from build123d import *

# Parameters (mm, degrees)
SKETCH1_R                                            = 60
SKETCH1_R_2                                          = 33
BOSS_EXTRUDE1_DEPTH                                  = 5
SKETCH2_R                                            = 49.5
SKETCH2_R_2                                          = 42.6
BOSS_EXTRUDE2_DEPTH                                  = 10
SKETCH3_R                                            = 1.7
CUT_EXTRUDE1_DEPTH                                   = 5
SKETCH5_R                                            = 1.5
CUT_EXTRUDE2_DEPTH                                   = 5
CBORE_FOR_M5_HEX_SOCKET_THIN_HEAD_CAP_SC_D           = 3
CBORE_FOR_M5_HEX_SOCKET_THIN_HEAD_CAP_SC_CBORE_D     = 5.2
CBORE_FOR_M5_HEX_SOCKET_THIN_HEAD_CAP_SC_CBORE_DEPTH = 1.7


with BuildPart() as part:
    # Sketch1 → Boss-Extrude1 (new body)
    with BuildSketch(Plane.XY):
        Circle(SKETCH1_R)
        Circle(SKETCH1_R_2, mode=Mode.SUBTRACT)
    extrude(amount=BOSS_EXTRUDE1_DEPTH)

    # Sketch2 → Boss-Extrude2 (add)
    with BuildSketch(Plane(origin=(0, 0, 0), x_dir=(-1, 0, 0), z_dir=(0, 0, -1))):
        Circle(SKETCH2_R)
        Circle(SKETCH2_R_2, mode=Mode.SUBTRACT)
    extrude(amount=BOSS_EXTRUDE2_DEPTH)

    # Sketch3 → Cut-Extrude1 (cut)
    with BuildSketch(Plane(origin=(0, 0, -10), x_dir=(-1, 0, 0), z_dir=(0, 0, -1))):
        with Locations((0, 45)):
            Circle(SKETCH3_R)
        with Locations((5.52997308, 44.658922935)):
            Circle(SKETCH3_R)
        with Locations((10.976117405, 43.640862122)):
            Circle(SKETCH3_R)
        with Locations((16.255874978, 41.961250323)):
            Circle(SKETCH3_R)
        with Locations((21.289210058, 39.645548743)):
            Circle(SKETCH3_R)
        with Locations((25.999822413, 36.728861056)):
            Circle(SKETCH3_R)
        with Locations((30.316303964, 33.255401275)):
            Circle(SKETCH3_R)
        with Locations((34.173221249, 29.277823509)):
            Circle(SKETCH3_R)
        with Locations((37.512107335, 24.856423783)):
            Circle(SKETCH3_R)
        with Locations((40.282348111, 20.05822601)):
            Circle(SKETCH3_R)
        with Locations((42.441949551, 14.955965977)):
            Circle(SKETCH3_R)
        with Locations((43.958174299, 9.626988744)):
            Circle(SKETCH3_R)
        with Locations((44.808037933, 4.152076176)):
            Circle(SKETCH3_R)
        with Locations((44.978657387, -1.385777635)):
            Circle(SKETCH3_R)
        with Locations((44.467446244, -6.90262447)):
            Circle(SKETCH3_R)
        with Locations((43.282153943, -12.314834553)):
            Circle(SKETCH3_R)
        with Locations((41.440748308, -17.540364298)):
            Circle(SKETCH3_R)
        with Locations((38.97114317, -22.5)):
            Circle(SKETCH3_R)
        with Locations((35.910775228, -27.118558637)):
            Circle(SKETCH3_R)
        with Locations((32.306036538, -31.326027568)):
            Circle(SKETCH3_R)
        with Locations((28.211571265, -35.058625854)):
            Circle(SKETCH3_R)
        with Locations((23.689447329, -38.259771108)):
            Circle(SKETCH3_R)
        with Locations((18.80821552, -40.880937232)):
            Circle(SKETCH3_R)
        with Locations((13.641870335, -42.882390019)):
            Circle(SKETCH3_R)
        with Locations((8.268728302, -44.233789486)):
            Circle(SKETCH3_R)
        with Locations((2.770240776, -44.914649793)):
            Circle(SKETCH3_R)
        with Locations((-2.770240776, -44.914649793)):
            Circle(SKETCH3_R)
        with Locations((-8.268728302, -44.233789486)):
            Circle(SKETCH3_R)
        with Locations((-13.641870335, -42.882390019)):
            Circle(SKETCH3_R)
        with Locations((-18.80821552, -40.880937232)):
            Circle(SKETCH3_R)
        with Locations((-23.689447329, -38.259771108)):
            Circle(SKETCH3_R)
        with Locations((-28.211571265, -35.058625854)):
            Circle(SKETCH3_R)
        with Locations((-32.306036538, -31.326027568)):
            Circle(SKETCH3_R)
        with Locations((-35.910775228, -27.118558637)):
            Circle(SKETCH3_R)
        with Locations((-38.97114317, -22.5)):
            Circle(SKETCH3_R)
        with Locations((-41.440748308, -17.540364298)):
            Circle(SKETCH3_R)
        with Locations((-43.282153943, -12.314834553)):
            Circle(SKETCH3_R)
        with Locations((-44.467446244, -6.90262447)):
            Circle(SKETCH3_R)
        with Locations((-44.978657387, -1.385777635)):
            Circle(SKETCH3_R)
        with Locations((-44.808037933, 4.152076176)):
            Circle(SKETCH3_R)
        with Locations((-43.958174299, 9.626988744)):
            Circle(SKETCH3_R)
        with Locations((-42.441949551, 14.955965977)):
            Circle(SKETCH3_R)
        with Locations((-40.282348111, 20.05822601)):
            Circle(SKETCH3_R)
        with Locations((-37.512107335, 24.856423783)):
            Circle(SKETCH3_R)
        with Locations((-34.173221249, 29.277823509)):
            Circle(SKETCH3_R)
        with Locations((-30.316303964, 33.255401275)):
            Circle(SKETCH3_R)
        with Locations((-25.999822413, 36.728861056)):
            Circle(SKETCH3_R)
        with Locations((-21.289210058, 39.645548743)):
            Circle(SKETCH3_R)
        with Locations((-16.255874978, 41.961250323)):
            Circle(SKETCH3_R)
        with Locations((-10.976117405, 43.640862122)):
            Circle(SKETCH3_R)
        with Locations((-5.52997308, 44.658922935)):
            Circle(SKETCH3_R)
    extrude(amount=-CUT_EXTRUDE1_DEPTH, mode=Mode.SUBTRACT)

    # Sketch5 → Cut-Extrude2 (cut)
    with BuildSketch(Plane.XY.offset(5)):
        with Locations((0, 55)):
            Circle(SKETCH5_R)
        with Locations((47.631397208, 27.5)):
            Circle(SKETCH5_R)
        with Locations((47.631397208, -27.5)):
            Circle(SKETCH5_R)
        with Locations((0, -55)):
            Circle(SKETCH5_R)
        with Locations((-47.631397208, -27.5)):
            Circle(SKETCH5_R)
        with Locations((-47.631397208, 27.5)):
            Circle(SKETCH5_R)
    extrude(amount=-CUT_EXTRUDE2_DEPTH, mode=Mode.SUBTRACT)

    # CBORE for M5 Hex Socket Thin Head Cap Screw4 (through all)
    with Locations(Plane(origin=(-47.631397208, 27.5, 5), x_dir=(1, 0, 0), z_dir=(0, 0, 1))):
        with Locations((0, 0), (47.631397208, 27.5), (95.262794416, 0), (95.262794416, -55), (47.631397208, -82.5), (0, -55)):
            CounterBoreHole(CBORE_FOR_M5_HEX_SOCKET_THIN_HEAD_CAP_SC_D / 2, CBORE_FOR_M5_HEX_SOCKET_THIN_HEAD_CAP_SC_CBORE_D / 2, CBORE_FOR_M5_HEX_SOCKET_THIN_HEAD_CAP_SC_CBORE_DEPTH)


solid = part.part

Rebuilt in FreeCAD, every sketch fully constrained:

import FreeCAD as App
import Part
import Sketcher

V = App.Vector

doc = App.newDocument("Part")
params = doc.addObject("Spreadsheet::Sheet", "Params")
for row, (alias, value) in enumerate([
    ("sketch1_diameter", "120 mm"),
    ("sketch1_diameter2", "66 mm"),
    ("pad1_length", "5 mm"),
    ("sketch2_diameter", "99 mm"),
    ("sketch2_diameter2", "85.2 mm"),
    ("pad2_length", "10 mm"),
    ("sketch3_diameter", "3.4 mm"),
    ("pocket1_length", "5 mm"),
    ("sketch4_diameter", "3 mm"),
    ("pocket2_length", "5 mm"),
    ("sketch5_diameter", "3 mm"),
    ("hole_diameter", "3 mm"),
    ("hole_cbore_diameter", "5.2 mm"),
    ("hole_cbore_depth", "1.7 mm"),
], start=1):
    params.set(f"A{row}", alias)
    params.set(f"B{row}", "=" + value)
    params.setAlias(f"B{row}", alias)

body = doc.addObject("PartDesign::Body", "Body")

sketch1 = doc.addObject("Sketcher::SketchObject", "Sketch")
body.addObject(sketch1)
sketch1.AttachmentSupport = (doc.XY_Plane, [""])
sketch1.MapMode = "FlatFace"
sketch1.addGeometry(Part.Circle(V(0, 0, 0), V(0, 0, 1), 60), False)
sketch1.addGeometry(Part.Circle(V(0, 0, 0), V(0, 0, 1), 33), False)
sketch1.addConstraint(Sketcher.Constraint("Coincident", 0, 3, -1, 1))
sketch1.addConstraint(Sketcher.Constraint("Coincident", 1, 3, -1, 1))
sketch1.addConstraint(Sketcher.Constraint("Diameter", 0, 120.0))
sketch1.addConstraint(Sketcher.Constraint("Diameter", 1, 66.0))
sketch1.setExpression("Constraints[2]", "Params.sketch1_diameter")
sketch1.setExpression("Constraints[3]", "Params.sketch1_diameter2")
pad1 = doc.addObject("PartDesign::Pad", "Pad")
body.addObject(pad1)
pad1.Profile = sketch1
pad1.setExpression("Length", "Params.pad1_length")

sketch2 = doc.addObject("Sketcher::SketchObject", "Sketch001")
body.addObject(sketch2)
sketch2.AttachmentSupport = (doc.XY_Plane, [""])
sketch2.MapMode = "FlatFace"
sketch2.addGeometry(Part.Circle(V(0, 0, 0), V(0, 0, 1), 50), False)
sketch2.addGeometry(Part.Circle(V(0, 0, 0), V(0, 0, 1), 43), False)
sketch2.addConstraint(Sketcher.Constraint("Coincident", 0, 3, -1, 1))
sketch2.addConstraint(Sketcher.Constraint("Coincident", 1, 3, -1, 1))
sketch2.addConstraint(Sketcher.Constraint("Diameter", 0, 99.0))
sketch2.addConstraint(Sketcher.Constraint("Diameter", 1, 85.2))
sketch2.setExpression("Constraints[2]", "Params.sketch2_diameter")
sketch2.setExpression("Constraints[3]", "Params.sketch2_diameter2")
pad2 = doc.addObject("PartDesign::Pad", "Pad001")
body.addObject(pad2)
pad2.Profile = sketch2
pad2.setExpression("Length", "Params.pad2_length")
pad2.Reversed = True

sketch3 = doc.addObject("Sketcher::SketchObject", "Sketch002")
body.addObject(sketch3)
sketch3.AttachmentSupport = (doc.XY_Plane, [""])
sketch3.MapMode = "FlatFace"
sketch3.AttachmentOffset = App.Placement(V(0, 0, -10), App.Rotation())
sketch3.addGeometry(Part.Circle(V(0, 45, 0), V(0, 0, 1), 1.7), False)
sketch3.addGeometry(Part.Circle(V(-5.5, 44.7, 0), V(0, 0, 1), 1.7), False)
sketch3.addGeometry(Part.Circle(V(-11, 43.6, 0), V(0, 0, 1), 1.7), False)
sketch3.addGeometry(Part.Circle(V(-16.3, 42, 0), V(0, 0, 1), 1.7), False)
sketch3.addGeometry(Part.Circle(V(-21.3, 39.6, 0), V(0, 0, 1), 1.7), False)
sketch3.addGeometry(Part.Circle(V(-26, 36.7, 0), V(0, 0, 1), 1.7), False)
sketch3.addGeometry(Part.Circle(V(-30.3, 33.3, 0), V(0, 0, 1), 1.7), False)
sketch3.addGeometry(Part.Circle(V(-34.2, 29.3, 0), V(0, 0, 1), 1.7), False)
sketch3.addGeometry(Part.Circle(V(-37.5, 24.9, 0), V(0, 0, 1), 1.7), False)
sketch3.addGeometry(Part.Circle(V(-40.3, 20.1, 0), V(0, 0, 1), 1.7), False)
sketch3.addGeometry(Part.Circle(V(-42.4, 15, 0), V(0, 0, 1), 1.7), False)
sketch3.addGeometry(Part.Circle(V(-44, 9.6, 0), V(0, 0, 1), 1.7), False)
sketch3.addGeometry(Part.Circle(V(-44.8, 4.2, 0), V(0, 0, 1), 1.7), False)
sketch3.addGeometry(Part.Circle(V(-45, -1.4, 0), V(0, 0, 1), 1.7), False)
sketch3.addGeometry(Part.Circle(V(-44.5, -6.9, 0), V(0, 0, 1), 1.7), False)
sketch3.addGeometry(Part.Circle(V(-43.3, -12.3, 0), V(0, 0, 1), 1.7), False)
sketch3.addGeometry(Part.Circle(V(-41.4, -17.5, 0), V(0, 0, 1), 1.7), False)
sketch3.addGeometry(Part.Circle(V(-39, -22.5, 0), V(0, 0, 1), 1.7), False)
sketch3.addGeometry(Part.Circle(V(-35.9, -27.1, 0), V(0, 0, 1), 1.7), False)
sketch3.addGeometry(Part.Circle(V(-32.3, -31.3, 0), V(0, 0, 1), 1.7), False)
sketch3.addGeometry(Part.Circle(V(-28.2, -35.1, 0), V(0, 0, 1), 1.7), False)
sketch3.addGeometry(Part.Circle(V(-23.7, -38.3, 0), V(0, 0, 1), 1.7), False)
sketch3.addGeometry(Part.Circle(V(-18.8, -40.9, 0), V(0, 0, 1), 1.7), False)
sketch3.addGeometry(Part.Circle(V(-13.6, -42.9, 0), V(0, 0, 1), 1.7), False)
sketch3.addGeometry(Part.Circle(V(-8.3, -44.2, 0), V(0, 0, 1), 1.7), False)
sketch3.addGeometry(Part.Circle(V(-2.8, -44.9, 0), V(0, 0, 1), 1.7), False)
sketch3.addGeometry(Part.Circle(V(2.8, -44.9, 0), V(0, 0, 1), 1.7), False)
sketch3.addGeometry(Part.Circle(V(8.3, -44.2, 0), V(0, 0, 1), 1.7), False)
sketch3.addGeometry(Part.Circle(V(13.6, -42.9, 0), V(0, 0, 1), 1.7), False)
sketch3.addGeometry(Part.Circle(V(18.8, -40.9, 0), V(0, 0, 1), 1.7), False)
sketch3.addGeometry(Part.Circle(V(23.7, -38.3, 0), V(0, 0, 1), 1.7), False)
sketch3.addGeometry(Part.Circle(V(28.2, -35.1, 0), V(0, 0, 1), 1.7), False)
sketch3.addGeometry(Part.Circle(V(32.3, -31.3, 0), V(0, 0, 1), 1.7), False)
sketch3.addGeometry(Part.Circle(V(35.9, -27.1, 0), V(0, 0, 1), 1.7), False)
sketch3.addGeometry(Part.Circle(V(39, -22.5, 0), V(0, 0, 1), 1.7), False)
sketch3.addGeometry(Part.Circle(V(41.4, -17.5, 0), V(0, 0, 1), 1.7), False)
sketch3.addGeometry(Part.Circle(V(43.3, -12.3, 0), V(0, 0, 1), 1.7), False)
sketch3.addGeometry(Part.Circle(V(44.5, -6.9, 0), V(0, 0, 1), 1.7), False)
sketch3.addGeometry(Part.Circle(V(45, -1.4, 0), V(0, 0, 1), 1.7), False)
sketch3.addGeometry(Part.Circle(V(44.8, 4.2, 0), V(0, 0, 1), 1.7), False)
sketch3.addGeometry(Part.Circle(V(44, 9.6, 0), V(0, 0, 1), 1.7), False)
sketch3.addGeometry(Part.Circle(V(42.4, 15, 0), V(0, 0, 1), 1.7), False)
sketch3.addGeometry(Part.Circle(V(40.3, 20.1, 0), V(0, 0, 1), 1.7), False)
sketch3.addGeometry(Part.Circle(V(37.5, 24.9, 0), V(0, 0, 1), 1.7), False)
sketch3.addGeometry(Part.Circle(V(34.2, 29.3, 0), V(0, 0, 1), 1.7), False)
sketch3.addGeometry(Part.Circle(V(30.3, 33.3, 0), V(0, 0, 1), 1.7), False)
sketch3.addGeometry(Part.Circle(V(26, 36.7, 0), V(0, 0, 1), 1.7), False)
sketch3.addGeometry(Part.Circle(V(21.3, 39.6, 0), V(0, 0, 1), 1.7), False)
sketch3.addGeometry(Part.Circle(V(16.3, 42, 0), V(0, 0, 1), 1.7), False)
sketch3.addGeometry(Part.Circle(V(11, 43.6, 0), V(0, 0, 1), 1.7), False)
sketch3.addGeometry(Part.Circle(V(5.5, 44.7, 0), V(0, 0, 1), 1.7), False)
sketch3.addConstraint(Sketcher.Constraint("Equal", 0, 1))
sketch3.addConstraint(Sketcher.Constraint("Equal", 1, 2))
sketch3.addConstraint(Sketcher.Constraint("Equal", 2, 3))
sketch3.addConstraint(Sketcher.Constraint("Equal", 3, 4))
sketch3.addConstraint(Sketcher.Constraint("Equal", 4, 5))
sketch3.addConstraint(Sketcher.Constraint("Equal", 5, 6))
sketch3.addConstraint(Sketcher.Constraint("Equal", 6, 7))
sketch3.addConstraint(Sketcher.Constraint("Equal", 7, 8))
sketch3.addConstraint(Sketcher.Constraint("Equal", 8, 9))
sketch3.addConstraint(Sketcher.Constraint("Equal", 9, 10))
sketch3.addConstraint(Sketcher.Constraint("Equal", 10, 11))
sketch3.addConstraint(Sketcher.Constraint("Equal", 11, 12))
sketch3.addConstraint(Sketcher.Constraint("Equal", 12, 13))
sketch3.addConstraint(Sketcher.Constraint("Equal", 13, 14))
sketch3.addConstraint(Sketcher.Constraint("Equal", 14, 15))
sketch3.addConstraint(Sketcher.Constraint("Equal", 15, 16))
sketch3.addConstraint(Sketcher.Constraint("Equal", 16, 17))
sketch3.addConstraint(Sketcher.Constraint("Equal", 17, 18))
sketch3.addConstraint(Sketcher.Constraint("Equal", 18, 19))
sketch3.addConstraint(Sketcher.Constraint("Equal", 19, 20))
sketch3.addConstraint(Sketcher.Constraint("Equal", 20, 21))
sketch3.addConstraint(Sketcher.Constraint("Equal", 21, 22))
sketch3.addConstraint(Sketcher.Constraint("Equal", 22, 23))
sketch3.addConstraint(Sketcher.Constraint("Equal", 23, 24))
sketch3.addConstraint(Sketcher.Constraint("Equal", 24, 25))
sketch3.addConstraint(Sketcher.Constraint("Equal", 25, 26))
sketch3.addConstraint(Sketcher.Constraint("Equal", 26, 27))
sketch3.addConstraint(Sketcher.Constraint("Equal", 27, 28))
sketch3.addConstraint(Sketcher.Constraint("Equal", 28, 29))
sketch3.addConstraint(Sketcher.Constraint("Equal", 29, 30))
sketch3.addConstraint(Sketcher.Constraint("Equal", 30, 31))
sketch3.addConstraint(Sketcher.Constraint("Equal", 31, 32))
sketch3.addConstraint(Sketcher.Constraint("Equal", 32, 33))
sketch3.addConstraint(Sketcher.Constraint("Equal", 33, 34))
sketch3.addConstraint(Sketcher.Constraint("Equal", 34, 35))
sketch3.addConstraint(Sketcher.Constraint("Equal", 35, 36))
sketch3.addConstraint(Sketcher.Constraint("Equal", 36, 37))
sketch3.addConstraint(Sketcher.Constraint("Equal", 37, 38))
sketch3.addConstraint(Sketcher.Constraint("Equal", 38, 39))
sketch3.addConstraint(Sketcher.Constraint("Equal", 39, 40))
sketch3.addConstraint(Sketcher.Constraint("Equal", 40, 41))
sketch3.addConstraint(Sketcher.Constraint("Equal", 41, 42))
sketch3.addConstraint(Sketcher.Constraint("Equal", 42, 43))
sketch3.addConstraint(Sketcher.Constraint("Equal", 43, 44))
sketch3.addConstraint(Sketcher.Constraint("Equal", 44, 45))
sketch3.addConstraint(Sketcher.Constraint("Equal", 45, 46))
sketch3.addConstraint(Sketcher.Constraint("Equal", 46, 47))
sketch3.addConstraint(Sketcher.Constraint("Equal", 47, 48))
sketch3.addConstraint(Sketcher.Constraint("Equal", 48, 49))
sketch3.addConstraint(Sketcher.Constraint("Equal", 49, 50))
sketch3.addConstraint(Sketcher.Constraint("Symmetric", 25, 3, 26, 3, -2))
sketch3.addConstraint(Sketcher.Constraint("Symmetric", 24, 3, 27, 3, -2))
sketch3.addConstraint(Sketcher.Constraint("Symmetric", 23, 3, 28, 3, -2))
sketch3.addConstraint(Sketcher.Constraint("Symmetric", 22, 3, 29, 3, -2))
sketch3.addConstraint(Sketcher.Constraint("Symmetric", 21, 3, 30, 3, -2))
sketch3.addConstraint(Sketcher.Constraint("Symmetric", 20, 3, 31, 3, -2))
sketch3.addConstraint(Sketcher.Constraint("Symmetric", 19, 3, 32, 3, -2))
sketch3.addConstraint(Sketcher.Constraint("Symmetric", 18, 3, 33, 3, -2))
sketch3.addConstraint(Sketcher.Constraint("Symmetric", 17, 3, 34, 3, -2))
sketch3.addConstraint(Sketcher.Constraint("Symmetric", 16, 3, 35, 3, -2))
sketch3.addConstraint(Sketcher.Constraint("Symmetric", 15, 3, 36, 3, -2))
sketch3.addConstraint(Sketcher.Constraint("Symmetric", 14, 3, 37, 3, -2))
sketch3.addConstraint(Sketcher.Constraint("Symmetric", 13, 3, 38, 3, -2))
sketch3.addConstraint(Sketcher.Constraint("Symmetric", 12, 3, 39, 3, -2))
sketch3.addConstraint(Sketcher.Constraint("Symmetric", 11, 3, 40, 3, -2))
sketch3.addConstraint(Sketcher.Constraint("Symmetric", 10, 3, 41, 3, -2))
sketch3.addConstraint(Sketcher.Constraint("Symmetric", 9, 3, 42, 3, -2))
sketch3.addConstraint(Sketcher.Constraint("Symmetric", 8, 3, 43, 3, -2))
sketch3.addConstraint(Sketcher.Constraint("Symmetric", 7, 3, 44, 3, -2))
sketch3.addConstraint(Sketcher.Constraint("Symmetric", 6, 3, 45, 3, -2))
sketch3.addConstraint(Sketcher.Constraint("Symmetric", 5, 3, 46, 3, -2))
sketch3.addConstraint(Sketcher.Constraint("Symmetric", 4, 3, 47, 3, -2))
sketch3.addConstraint(Sketcher.Constraint("Symmetric", 3, 3, 48, 3, -2))
sketch3.addConstraint(Sketcher.Constraint("Symmetric", 2, 3, 49, 3, -2))
sketch3.addConstraint(Sketcher.Constraint("Symmetric", 1, 3, 50, 3, -2))
sketch3.addConstraint(Sketcher.Constraint("PointOnObject", 0, 3, -2))
sketch3.addConstraint(Sketcher.Constraint("Diameter", 0, 3.4))
sketch3.addConstraint(Sketcher.Constraint("DistanceY", -1, 1, 0, 3, 45.0))
sketch3.addConstraint(Sketcher.Constraint("DistanceY", 17, 3, -1, 1, 22.5))
sketch3.addConstraint(Sketcher.Constraint("DistanceY", 5, 3, 2, 3, 6.912001))
sketch3.addConstraint(Sketcher.Constraint("DistanceY", -1, 1, 6, 3, 33.255401))
sketch3.addConstraint(Sketcher.Constraint("DistanceX", 3, 3, 1, 3, 10.725902))
sketch3.addConstraint(Sketcher.Constraint("DistanceY", 4, 3, 3, 3, 2.315702))
sketch3.addConstraint(Sketcher.Constraint("DistanceX", 7, 3, 5, 3, 8.173399))
sketch3.addConstraint(Sketcher.Constraint("DistanceY", 8, 3, 7, 3, 4.4214))
sketch3.addConstraint(Sketcher.Constraint("DistanceX", 10, 3, 9, 3, 2.159601))
sketch3.addConstraint(Sketcher.Constraint("DistanceY", 13, 3, 8, 3, 26.242201))
sketch3.addConstraint(Sketcher.Constraint("DistanceY", 14, 3, 12, 3, 11.054701))
sketch3.addConstraint(Sketcher.Constraint("DistanceX", 14, 3, 9, 3, 4.185098))
sketch3.addConstraint(Sketcher.Constraint("DistanceY", 15, 3, 10, 3, 27.270801))
sketch3.addConstraint(Sketcher.Constraint("DistanceY", 20, 3, 19, 3, 3.732598))
sketch3.addConstraint(Sketcher.Constraint("DistanceX", 16, 3, 21, 3, 17.751301))
sketch3.addConstraint(Sketcher.Constraint("DistanceX", 20, 3, 23, 3, 14.569701))
sketch3.addConstraint(Sketcher.Constraint("DistanceY", 24, 3, 23, 3, 1.351399))
sketch3.addConstraint(Sketcher.Constraint("DistanceX", 23, 3, 27, 3, 21.910599))
sketch3.addConstraint(Sketcher.Constraint("DistanceY", -1, 1, 3, 3, 41.96125))
sketch3.addConstraint(Sketcher.Constraint("DistanceX", 4, 3, -1, 1, 21.28921))
sketch3.addConstraint(Sketcher.Constraint("DistanceY", -1, 1, 5, 3, 36.728861))
sketch3.addConstraint(Sketcher.Constraint("DistanceX", 7, 3, -1, 1, 34.173221))
sketch3.addConstraint(Sketcher.Constraint("DistanceX", 9, 3, -1, 1, 40.282348))
sketch3.addConstraint(Sketcher.Constraint("DistanceY", -1, 1, 11, 3, 9.626989))
sketch3.addConstraint(Sketcher.Constraint("DistanceX", 16, 3, -1, 1, 41.440748))
sketch3.addConstraint(Sketcher.Constraint("DistanceY", 18, 3, -1, 1, 27.118559))
sketch3.addConstraint(Sketcher.Constraint("DistanceX", 20, 3, -1, 1, 28.211571))
sketch3.addConstraint(Sketcher.Constraint("DistanceY", 21, 3, -1, 1, 38.259771))
sketch3.addConstraint(Sketcher.Constraint("DistanceY", 23, 3, -1, 1, 42.88239))
sketch3.addConstraint(Sketcher.Constraint("DistanceX", 25, 3, -1, 1, 2.770241))
sketch3.addConstraint(Sketcher.Constraint("DistanceY", 25, 3, -1, 1, 44.91465))
sketch3.addConstraint(Sketcher.Constraint("DistanceY", 2, 3, 1, 3, 1.018061))
sketch3.addConstraint(Sketcher.Constraint("DistanceX", 5, 3, 1, 3, 20.469849))
sketch3.addConstraint(Sketcher.Constraint("DistanceX", 6, 3, 5, 3, 4.316482))
sketch3.addConstraint(Sketcher.Constraint("DistanceY", 7, 3, 2, 3, 14.363039))
sketch3.addConstraint(Sketcher.Constraint("DistanceX", 9, 3, 8, 3, 2.770241))
sketch3.addConstraint(Sketcher.Constraint("DistanceY", 10, 3, 9, 3, 5.10226))
sketch3.addConstraint(Sketcher.Constraint("DistanceX", 11, 3, 6, 3, 13.64187))
sketch3.addConstraint(Sketcher.Constraint("DistanceX", 12, 3, 10, 3, 2.366088))
sketch3.addConstraint(Sketcher.Constraint("DistanceY", 12, 3, 10, 3, 10.80389))
sketch3.addConstraint(Sketcher.Constraint("DistanceX", 13, 3, 12, 3, 0.170619))
sketch3.addConstraint(Sketcher.Constraint("DistanceX", 11, 3, 15, 3, 0.67602))
sketch3.addConstraint(Sketcher.Constraint("DistanceY", 16, 3, 15, 3, 5.22553))
sketch3.addConstraint(Sketcher.Constraint("DistanceX", 15, 3, 17, 3, 4.311011))
sketch3.addConstraint(Sketcher.Constraint("DistanceX", 15, 3, 18, 3, 7.371379))
sketch3.addConstraint(Sketcher.Constraint("DistanceX", 18, 3, 19, 3, 3.604739))
sketch3.addConstraint(Sketcher.Constraint("DistanceY", 19, 3, 18, 3, 4.207469))
sketch3.addConstraint(Sketcher.Constraint("DistanceY", 20, 3, 16, 3, 17.518262))
sketch3.addConstraint(Sketcher.Constraint("DistanceX", 21, 3, 22, 3, 4.881232))
sketch3.addConstraint(Sketcher.Constraint("DistanceY", 22, 3, 20, 3, 5.822311))
sketch3.addConstraint(Sketcher.Constraint("DistanceX", 1, 3, 49, 3, 16.50609))
sketch3.setExpression("Constraints[76]", "Params.sketch3_diameter")
pocket1 = doc.addObject("PartDesign::Pocket", "Pocket")
body.addObject(pocket1)
pocket1.Profile = sketch3
pocket1.setExpression("Length", "Params.pocket1_length")
pocket1.Reversed = True

sketch4 = doc.addObject("Sketcher::SketchObject", "Sketch003")
body.addObject(sketch4)
sketch4.AttachmentSupport = (doc.XY_Plane, [""])
sketch4.MapMode = "FlatFace"
sketch4.AttachmentOffset = App.Placement(V(0, 0, 5), App.Rotation())
sketch4.addGeometry(Part.Circle(V(0, 55, 0), V(0, 0, 1), 1.5), False)
sketch4.addGeometry(Part.Circle(V(47.6, 27.5, 0), V(0, 0, 1), 1.5), False)
sketch4.addGeometry(Part.Circle(V(47.6, -27.5, 0), V(0, 0, 1), 1.5), False)
sketch4.addGeometry(Part.Circle(V(0, -55, 0), V(0, 0, 1), 1.5), False)
sketch4.addGeometry(Part.Circle(V(-47.6, -27.5, 0), V(0, 0, 1), 1.5), False)
sketch4.addGeometry(Part.Circle(V(-47.6, 27.5, 0), V(0, 0, 1), 1.5), False)
sketch4.addConstraint(Sketcher.Constraint("Equal", 0, 1))
sketch4.addConstraint(Sketcher.Constraint("Equal", 1, 2))
sketch4.addConstraint(Sketcher.Constraint("Equal", 2, 3))
sketch4.addConstraint(Sketcher.Constraint("Equal", 3, 4))
sketch4.addConstraint(Sketcher.Constraint("Equal", 4, 5))
sketch4.addConstraint(Sketcher.Constraint("Symmetric", 0, 3, 3, 3, -1, 1))
sketch4.addConstraint(Sketcher.Constraint("Symmetric", 1, 3, 4, 3, -1, 1))
sketch4.addConstraint(Sketcher.Constraint("Symmetric", 2, 3, 5, 3, -1, 1))
sketch4.addConstraint(Sketcher.Constraint("Symmetric", 2, 3, 4, 3, -2))
sketch4.addConstraint(Sketcher.Constraint("PointOnObject", 0, 3, -2))
sketch4.addConstraint(Sketcher.Constraint("Diameter", 0, 3.0))
sketch4.addConstraint(Sketcher.Constraint("DistanceY", -1, 1, 0, 3, 55.0))
sketch4.addConstraint(Sketcher.Constraint("DistanceY", 2, 3, 1, 3, 55.0))
sketch4.addConstraint(Sketcher.Constraint("DistanceX", -1, 1, 1, 3, 47.631397))
sketch4.setExpression("Constraints[10]", "Params.sketch4_diameter")
pocket2 = doc.addObject("PartDesign::Pocket", "Pocket001")
body.addObject(pocket2)
pocket2.Profile = sketch4
pocket2.setExpression("Length", "Params.pocket2_length")

sketch5 = doc.addObject("Sketcher::SketchObject", "Sketch004")
body.addObject(sketch5)
sketch5.AttachmentSupport = (doc.XY_Plane, [""])
sketch5.MapMode = "FlatFace"
sketch5.AttachmentOffset = App.Placement(V(0, 0, 5), App.Rotation())
sketch5.addGeometry(Part.Circle(V(-47.6, 27.5, 0), V(0, 0, 1), 1.5), False)
sketch5.addGeometry(Part.Circle(V(0, 55, 0), V(0, 0, 1), 1.5), False)
sketch5.addGeometry(Part.Circle(V(47.6, 27.5, 0), V(0, 0, 1), 1.5), False)
sketch5.addGeometry(Part.Circle(V(47.6, -27.5, 0), V(0, 0, 1), 1.5), False)
sketch5.addGeometry(Part.Circle(V(0, -55, 0), V(0, 0, 1), 1.5), False)
sketch5.addGeometry(Part.Circle(V(-47.6, -27.5, 0), V(0, 0, 1), 1.5), False)
sketch5.addConstraint(Sketcher.Constraint("Equal", 0, 1))
sketch5.addConstraint(Sketcher.Constraint("Equal", 1, 2))
sketch5.addConstraint(Sketcher.Constraint("Equal", 2, 3))
sketch5.addConstraint(Sketcher.Constraint("Equal", 3, 4))
sketch5.addConstraint(Sketcher.Constraint("Equal", 4, 5))
sketch5.addConstraint(Sketcher.Constraint("Symmetric", 0, 3, 3, 3, -1, 1))
sketch5.addConstraint(Sketcher.Constraint("Symmetric", 1, 3, 4, 3, -1, 1))
sketch5.addConstraint(Sketcher.Constraint("Symmetric", 2, 3, 5, 3, -1, 1))
sketch5.addConstraint(Sketcher.Constraint("Symmetric", 0, 3, 2, 3, -2))
sketch5.addConstraint(Sketcher.Constraint("PointOnObject", 1, 3, -2))
sketch5.addConstraint(Sketcher.Constraint("Diameter", 0, 3.0))
sketch5.addConstraint(Sketcher.Constraint("DistanceY", -1, 1, 1, 3, 55.0))
sketch5.addConstraint(Sketcher.Constraint("DistanceY", 3, 3, 2, 3, 55.0))
sketch5.addConstraint(Sketcher.Constraint("DistanceX", 0, 3, -1, 1, 47.631397))
sketch5.setExpression("Constraints[10]", "Params.sketch5_diameter")
doc.recompute()
hole = doc.addObject("PartDesign::Hole", "Hole")
body.addObject(hole)
hole.Profile = sketch5
hole.ThreadType = "None"
hole.setExpression("Diameter", "Params.hole_diameter")
hole.DepthType = "ThroughAll"
hole.HoleCutType = "Counterbore"
hole.setExpression("HoleCutDiameter", "Params.hole_cbore_diameter")
hole.setExpression("HoleCutDepth", "Params.hole_cbore_depth")

doc.recompute()
